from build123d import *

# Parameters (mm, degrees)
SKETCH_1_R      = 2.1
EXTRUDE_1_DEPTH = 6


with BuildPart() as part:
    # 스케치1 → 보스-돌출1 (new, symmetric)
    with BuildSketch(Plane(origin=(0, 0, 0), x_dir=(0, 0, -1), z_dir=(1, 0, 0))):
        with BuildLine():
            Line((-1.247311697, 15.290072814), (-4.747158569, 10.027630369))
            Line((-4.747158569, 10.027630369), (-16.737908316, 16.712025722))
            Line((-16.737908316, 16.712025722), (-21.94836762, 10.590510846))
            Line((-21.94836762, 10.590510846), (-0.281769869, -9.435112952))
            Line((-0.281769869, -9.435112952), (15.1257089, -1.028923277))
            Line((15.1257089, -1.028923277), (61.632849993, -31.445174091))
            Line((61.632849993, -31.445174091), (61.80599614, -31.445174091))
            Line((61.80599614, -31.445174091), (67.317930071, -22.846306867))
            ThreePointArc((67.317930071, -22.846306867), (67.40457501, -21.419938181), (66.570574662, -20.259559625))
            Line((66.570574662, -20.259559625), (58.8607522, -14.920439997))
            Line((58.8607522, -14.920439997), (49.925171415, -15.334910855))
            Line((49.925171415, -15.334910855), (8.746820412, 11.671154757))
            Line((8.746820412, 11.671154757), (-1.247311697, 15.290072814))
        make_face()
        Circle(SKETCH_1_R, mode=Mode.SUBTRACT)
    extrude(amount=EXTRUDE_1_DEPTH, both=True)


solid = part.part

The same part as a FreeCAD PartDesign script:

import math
import FreeCAD as App
import Part
import Sketcher

V = App.Vector

doc = App.newDocument("Part")
body = doc.addObject("PartDesign::Body", "Body")

# Sketch on YZ plane
sketch1 = body.newObject("Sketcher::SketchObject", "Sketch")
sketch1.AttachmentSupport = (doc.getObject("YZ_Plane"), [""])
sketch1.MapMode = "FlatFace"
sketch1.addGeometry([
    Part.LineSegment(V(15.29, 1.25, 0), V(10.03, 4.75, 0)),  # 0
    Part.LineSegment(V(10.03, 4.75, 0), V(16.71, 16.74, 0)),  # 1
    Part.LineSegment(V(16.71, 16.74, 0), V(10.59, 21.95, 0)),  # 2
    Part.LineSegment(V(10.59, 21.95, 0), V(-9.44, 0.28, 0)),  # 3
    Part.LineSegment(V(-9.44, 0.28, 0), V(-1.03, -15.13, 0)),  # 4
    Part.LineSegment(V(-1.03, -15.13, 0), V(-31.45, -61.63, 0)),  # 5
    Part.LineSegment(V(-31.45, -61.63, 0), V(-31.45, -61.81, 0)),  # 6
    Part.LineSegment(V(-31.45, -61.81, 0), V(-22.85, -67.32, 0)),  # 7
    Part.ArcOfCircle(Part.Circle(V(-22.01, -65.36, 0), V(0, 0, 1), 2.13), math.radians(-113), math.radians(-35)),  # 8
    Part.LineSegment(V(-20.26, -66.57, 0), V(-14.92, -58.86, 0)),  # 9
    Part.LineSegment(V(-14.92, -58.86, 0), V(-15.33, -49.93, 0)),  # 10
    Part.LineSegment(V(-15.33, -49.93, 0), V(11.67, -8.75, 0)),  # 11
    Part.LineSegment(V(11.67, -8.75, 0), V(15.29, 1.25, 0)),  # 12
    Part.Circle(V(0, 0, 0), V(0, 0, 1), 2.1),  # 13
], False)
sketch1.addConstraint([
    Sketcher.Constraint("Coincident", 0, 2, 1, 1),
    Sketcher.Constraint("Coincident", 1, 2, 2, 1),
    Sketcher.Constraint("Coincident", 2, 2, 3, 1),
    Sketcher.Constraint("Coincident", 3, 2, 4, 1),
    Sketcher.Constraint("Coincident", 4, 2, 5, 1),
    Sketcher.Constraint("Coincident", 5, 2, 6, 1),
    Sketcher.Constraint("Coincident", 6, 2, 7, 1),
    Sketcher.Constraint("Coincident", 7, 2, 8, 1),
    Sketcher.Constraint("Tangent", 8, 2, 9, 1),
    Sketcher.Constraint("Coincident", 9, 2, 10, 1),
    Sketcher.Constraint("Coincident", 10, 2, 11, 1),
    Sketcher.Constraint("Coincident", 11, 2, 12, 1),
    Sketcher.Constraint("Coincident", 12, 2, 0, 1),
    Sketcher.Constraint("Vertical", 6),
    Sketcher.Constraint("Coincident", 13, 3, -1, 1),
    Sketcher.Constraint("Diameter", 13, 4.2),
    Sketcher.Constraint("Radius", 8, 2.130894),
    Sketcher.Constraint("DistanceX", 8, 3, -1, 1, 22.011399),
    Sketcher.Constraint("DistanceY", 7, 2, 3, 2, 67.5997),
    Sketcher.Constraint("Distance", 2, 8.03877),
    Sketcher.Constraint("Distance", 3, 29.503679),
    Sketcher.Constraint("Distance", 4, 17.551479),
    Sketcher.Constraint("Distance", 5, 55.570338),
    Sketcher.Constraint("Distance", 7, 10.213811),
    Sketcher.Constraint("Distance", 10, 8.945188),
    Sketcher.Constraint("Distance", 11, 49.244128),
    Sketcher.Constraint("Distance", 12, 10.62917),
    Sketcher.Constraint("DistanceY", 6, 2, 6, 1, 0.173146),
    Sketcher.Constraint("DistanceY", 8, 3, -1, 1, 65.357411),
    Sketcher.Constraint("DistanceX", -1, 1, 0, 2, 10.02763),
    Sketcher.Constraint("DistanceY", -1, 1, 0, 2, 4.747159),
    Sketcher.Constraint("DistanceY", -1, 1, 1, 2, 16.737908),
    Sketcher.Constraint("DistanceX", -1, 1, 2, 2, 10.590511),
    Sketcher.Constraint("DistanceY", -1, 1, 3, 2, 0.28177),
    Sketcher.Constraint("DistanceY", 4, 2, -1, 1, 15.125709),
    Sketcher.Constraint("DistanceY", 5, 2, -1, 1, 61.63285),
    Sketcher.Constraint("DistanceX", 8, 2, -1, 1, 20.25956),
    Sketcher.Constraint("DistanceX", 9, 2, -1, 1, 14.92044),
    Sketcher.Constraint("DistanceX", 10, 2, -1, 1, 15.334911),
    Sketcher.Constraint("DistanceY", 11, 2, -1, 1, 8.74682),
    Sketcher.Constraint("DistanceY", -1, 1, 12, 2, 1.247312),
])
pad1 = body.newObject("PartDesign::Pad", "Pad")
pad1.Profile = sketch1
pad1.Length = 12
pad1.Midplane = True

doc.recompute()
